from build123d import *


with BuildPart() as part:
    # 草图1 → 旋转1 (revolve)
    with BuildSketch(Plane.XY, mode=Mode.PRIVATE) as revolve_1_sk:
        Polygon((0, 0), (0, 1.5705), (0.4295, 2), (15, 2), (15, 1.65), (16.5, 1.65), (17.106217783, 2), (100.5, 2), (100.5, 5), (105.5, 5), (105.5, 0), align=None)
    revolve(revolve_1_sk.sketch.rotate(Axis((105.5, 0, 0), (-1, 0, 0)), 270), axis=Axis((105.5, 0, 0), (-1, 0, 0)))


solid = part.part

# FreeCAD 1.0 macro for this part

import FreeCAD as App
import Part
import Sketcher
Q = App.Units.Quantity


def add_polygon(sketch, points):
    """Adds a closed chain of lines whose ends are joined by coincident constraints."""
    first, n = sketch.GeometryCount, len(points)
    for a, b in zip(points, points[1:] + points[:1]):
        sketch.addGeometry(Part.LineSegment(App.Vector(*a, 0), App.Vector(*b, 0)), False)
    for i in range(n):
        sketch.addConstraint(Sketcher.Constraint("Coincident", first + i, 2, first + (i + 1) % n, 1))

doc = App.newDocument("Part")
body = doc.addObject("PartDesign::Body", "Body")

# Sketch on XY plane
sketch1 = body.newObject("Sketcher::SketchObject", "Sketch")
sketch1.AttachmentSupport = (doc.getObject("XY_Plane"), [""])
sketch1.MapMode = "FlatFace"
add_polygon(sketch1, [(0, 1.57), (0, 0), (105.5, 0), (105.5, 5), (100.5, 5), (100.5, 2), (17.11, 2), (16.5, 1.65), (15, 1.65), (15, 2), (0.43, 2)])  # lines 0-10
sketch1.addConstraint([
    Sketcher.Constraint("Vertical", 0),
    Sketcher.Constraint("Horizontal", 1),
    Sketcher.Constraint("Vertical", 2),
    Sketcher.Constraint("Horizontal", 3),
    Sketcher.Constraint("Vertical", 4),
    Sketcher.Constraint("Horizontal", 5),
    Sketcher.Constraint("Horizontal", 7),
    Sketcher.Constraint("Vertical", 8),
    Sketcher.Constraint("Horizontal", 9),
    Sketcher.Constraint("Coincident", 0, 2, -1, 1),
    Sketcher.Constraint("Horizontal", 5, 2, 8, 2),
    Sketcher.Constraint("Equal", 3, 2),
    Sketcher.Constraint("DistanceX", 3, 2, 3, 1, 5.0),
    Sketcher.Constraint("DistanceY", 4, 2, 4, 1, 3.0),
    Sketcher.Constraint("Angle", 6, Q("-150 deg")),
    Sketcher.Constraint("Angle", 10, Q("-135 deg")),
    Sketcher.Constraint("DistanceX", 1, 1, 1, 2, 105.5),
    Sketcher.Constraint("DistanceX", 7, 2, 7, 1, 1.5),
    Sketcher.Constraint("DistanceX", -1, 1, 7, 2, 15.0),
    Sketcher.Constraint("Distance", 6, 0.7),
    Sketcher.Constraint("DistanceX", 9, 2, 9, 1, 14.5705),
])
revolution = body.newObject("PartDesign::Revolution", "Revolution")
revolution.Profile = sketch1
revolution.ReferenceAxis = (sketch1, ["H_Axis"])
revolution.Angle = 360

doc.recompute()
